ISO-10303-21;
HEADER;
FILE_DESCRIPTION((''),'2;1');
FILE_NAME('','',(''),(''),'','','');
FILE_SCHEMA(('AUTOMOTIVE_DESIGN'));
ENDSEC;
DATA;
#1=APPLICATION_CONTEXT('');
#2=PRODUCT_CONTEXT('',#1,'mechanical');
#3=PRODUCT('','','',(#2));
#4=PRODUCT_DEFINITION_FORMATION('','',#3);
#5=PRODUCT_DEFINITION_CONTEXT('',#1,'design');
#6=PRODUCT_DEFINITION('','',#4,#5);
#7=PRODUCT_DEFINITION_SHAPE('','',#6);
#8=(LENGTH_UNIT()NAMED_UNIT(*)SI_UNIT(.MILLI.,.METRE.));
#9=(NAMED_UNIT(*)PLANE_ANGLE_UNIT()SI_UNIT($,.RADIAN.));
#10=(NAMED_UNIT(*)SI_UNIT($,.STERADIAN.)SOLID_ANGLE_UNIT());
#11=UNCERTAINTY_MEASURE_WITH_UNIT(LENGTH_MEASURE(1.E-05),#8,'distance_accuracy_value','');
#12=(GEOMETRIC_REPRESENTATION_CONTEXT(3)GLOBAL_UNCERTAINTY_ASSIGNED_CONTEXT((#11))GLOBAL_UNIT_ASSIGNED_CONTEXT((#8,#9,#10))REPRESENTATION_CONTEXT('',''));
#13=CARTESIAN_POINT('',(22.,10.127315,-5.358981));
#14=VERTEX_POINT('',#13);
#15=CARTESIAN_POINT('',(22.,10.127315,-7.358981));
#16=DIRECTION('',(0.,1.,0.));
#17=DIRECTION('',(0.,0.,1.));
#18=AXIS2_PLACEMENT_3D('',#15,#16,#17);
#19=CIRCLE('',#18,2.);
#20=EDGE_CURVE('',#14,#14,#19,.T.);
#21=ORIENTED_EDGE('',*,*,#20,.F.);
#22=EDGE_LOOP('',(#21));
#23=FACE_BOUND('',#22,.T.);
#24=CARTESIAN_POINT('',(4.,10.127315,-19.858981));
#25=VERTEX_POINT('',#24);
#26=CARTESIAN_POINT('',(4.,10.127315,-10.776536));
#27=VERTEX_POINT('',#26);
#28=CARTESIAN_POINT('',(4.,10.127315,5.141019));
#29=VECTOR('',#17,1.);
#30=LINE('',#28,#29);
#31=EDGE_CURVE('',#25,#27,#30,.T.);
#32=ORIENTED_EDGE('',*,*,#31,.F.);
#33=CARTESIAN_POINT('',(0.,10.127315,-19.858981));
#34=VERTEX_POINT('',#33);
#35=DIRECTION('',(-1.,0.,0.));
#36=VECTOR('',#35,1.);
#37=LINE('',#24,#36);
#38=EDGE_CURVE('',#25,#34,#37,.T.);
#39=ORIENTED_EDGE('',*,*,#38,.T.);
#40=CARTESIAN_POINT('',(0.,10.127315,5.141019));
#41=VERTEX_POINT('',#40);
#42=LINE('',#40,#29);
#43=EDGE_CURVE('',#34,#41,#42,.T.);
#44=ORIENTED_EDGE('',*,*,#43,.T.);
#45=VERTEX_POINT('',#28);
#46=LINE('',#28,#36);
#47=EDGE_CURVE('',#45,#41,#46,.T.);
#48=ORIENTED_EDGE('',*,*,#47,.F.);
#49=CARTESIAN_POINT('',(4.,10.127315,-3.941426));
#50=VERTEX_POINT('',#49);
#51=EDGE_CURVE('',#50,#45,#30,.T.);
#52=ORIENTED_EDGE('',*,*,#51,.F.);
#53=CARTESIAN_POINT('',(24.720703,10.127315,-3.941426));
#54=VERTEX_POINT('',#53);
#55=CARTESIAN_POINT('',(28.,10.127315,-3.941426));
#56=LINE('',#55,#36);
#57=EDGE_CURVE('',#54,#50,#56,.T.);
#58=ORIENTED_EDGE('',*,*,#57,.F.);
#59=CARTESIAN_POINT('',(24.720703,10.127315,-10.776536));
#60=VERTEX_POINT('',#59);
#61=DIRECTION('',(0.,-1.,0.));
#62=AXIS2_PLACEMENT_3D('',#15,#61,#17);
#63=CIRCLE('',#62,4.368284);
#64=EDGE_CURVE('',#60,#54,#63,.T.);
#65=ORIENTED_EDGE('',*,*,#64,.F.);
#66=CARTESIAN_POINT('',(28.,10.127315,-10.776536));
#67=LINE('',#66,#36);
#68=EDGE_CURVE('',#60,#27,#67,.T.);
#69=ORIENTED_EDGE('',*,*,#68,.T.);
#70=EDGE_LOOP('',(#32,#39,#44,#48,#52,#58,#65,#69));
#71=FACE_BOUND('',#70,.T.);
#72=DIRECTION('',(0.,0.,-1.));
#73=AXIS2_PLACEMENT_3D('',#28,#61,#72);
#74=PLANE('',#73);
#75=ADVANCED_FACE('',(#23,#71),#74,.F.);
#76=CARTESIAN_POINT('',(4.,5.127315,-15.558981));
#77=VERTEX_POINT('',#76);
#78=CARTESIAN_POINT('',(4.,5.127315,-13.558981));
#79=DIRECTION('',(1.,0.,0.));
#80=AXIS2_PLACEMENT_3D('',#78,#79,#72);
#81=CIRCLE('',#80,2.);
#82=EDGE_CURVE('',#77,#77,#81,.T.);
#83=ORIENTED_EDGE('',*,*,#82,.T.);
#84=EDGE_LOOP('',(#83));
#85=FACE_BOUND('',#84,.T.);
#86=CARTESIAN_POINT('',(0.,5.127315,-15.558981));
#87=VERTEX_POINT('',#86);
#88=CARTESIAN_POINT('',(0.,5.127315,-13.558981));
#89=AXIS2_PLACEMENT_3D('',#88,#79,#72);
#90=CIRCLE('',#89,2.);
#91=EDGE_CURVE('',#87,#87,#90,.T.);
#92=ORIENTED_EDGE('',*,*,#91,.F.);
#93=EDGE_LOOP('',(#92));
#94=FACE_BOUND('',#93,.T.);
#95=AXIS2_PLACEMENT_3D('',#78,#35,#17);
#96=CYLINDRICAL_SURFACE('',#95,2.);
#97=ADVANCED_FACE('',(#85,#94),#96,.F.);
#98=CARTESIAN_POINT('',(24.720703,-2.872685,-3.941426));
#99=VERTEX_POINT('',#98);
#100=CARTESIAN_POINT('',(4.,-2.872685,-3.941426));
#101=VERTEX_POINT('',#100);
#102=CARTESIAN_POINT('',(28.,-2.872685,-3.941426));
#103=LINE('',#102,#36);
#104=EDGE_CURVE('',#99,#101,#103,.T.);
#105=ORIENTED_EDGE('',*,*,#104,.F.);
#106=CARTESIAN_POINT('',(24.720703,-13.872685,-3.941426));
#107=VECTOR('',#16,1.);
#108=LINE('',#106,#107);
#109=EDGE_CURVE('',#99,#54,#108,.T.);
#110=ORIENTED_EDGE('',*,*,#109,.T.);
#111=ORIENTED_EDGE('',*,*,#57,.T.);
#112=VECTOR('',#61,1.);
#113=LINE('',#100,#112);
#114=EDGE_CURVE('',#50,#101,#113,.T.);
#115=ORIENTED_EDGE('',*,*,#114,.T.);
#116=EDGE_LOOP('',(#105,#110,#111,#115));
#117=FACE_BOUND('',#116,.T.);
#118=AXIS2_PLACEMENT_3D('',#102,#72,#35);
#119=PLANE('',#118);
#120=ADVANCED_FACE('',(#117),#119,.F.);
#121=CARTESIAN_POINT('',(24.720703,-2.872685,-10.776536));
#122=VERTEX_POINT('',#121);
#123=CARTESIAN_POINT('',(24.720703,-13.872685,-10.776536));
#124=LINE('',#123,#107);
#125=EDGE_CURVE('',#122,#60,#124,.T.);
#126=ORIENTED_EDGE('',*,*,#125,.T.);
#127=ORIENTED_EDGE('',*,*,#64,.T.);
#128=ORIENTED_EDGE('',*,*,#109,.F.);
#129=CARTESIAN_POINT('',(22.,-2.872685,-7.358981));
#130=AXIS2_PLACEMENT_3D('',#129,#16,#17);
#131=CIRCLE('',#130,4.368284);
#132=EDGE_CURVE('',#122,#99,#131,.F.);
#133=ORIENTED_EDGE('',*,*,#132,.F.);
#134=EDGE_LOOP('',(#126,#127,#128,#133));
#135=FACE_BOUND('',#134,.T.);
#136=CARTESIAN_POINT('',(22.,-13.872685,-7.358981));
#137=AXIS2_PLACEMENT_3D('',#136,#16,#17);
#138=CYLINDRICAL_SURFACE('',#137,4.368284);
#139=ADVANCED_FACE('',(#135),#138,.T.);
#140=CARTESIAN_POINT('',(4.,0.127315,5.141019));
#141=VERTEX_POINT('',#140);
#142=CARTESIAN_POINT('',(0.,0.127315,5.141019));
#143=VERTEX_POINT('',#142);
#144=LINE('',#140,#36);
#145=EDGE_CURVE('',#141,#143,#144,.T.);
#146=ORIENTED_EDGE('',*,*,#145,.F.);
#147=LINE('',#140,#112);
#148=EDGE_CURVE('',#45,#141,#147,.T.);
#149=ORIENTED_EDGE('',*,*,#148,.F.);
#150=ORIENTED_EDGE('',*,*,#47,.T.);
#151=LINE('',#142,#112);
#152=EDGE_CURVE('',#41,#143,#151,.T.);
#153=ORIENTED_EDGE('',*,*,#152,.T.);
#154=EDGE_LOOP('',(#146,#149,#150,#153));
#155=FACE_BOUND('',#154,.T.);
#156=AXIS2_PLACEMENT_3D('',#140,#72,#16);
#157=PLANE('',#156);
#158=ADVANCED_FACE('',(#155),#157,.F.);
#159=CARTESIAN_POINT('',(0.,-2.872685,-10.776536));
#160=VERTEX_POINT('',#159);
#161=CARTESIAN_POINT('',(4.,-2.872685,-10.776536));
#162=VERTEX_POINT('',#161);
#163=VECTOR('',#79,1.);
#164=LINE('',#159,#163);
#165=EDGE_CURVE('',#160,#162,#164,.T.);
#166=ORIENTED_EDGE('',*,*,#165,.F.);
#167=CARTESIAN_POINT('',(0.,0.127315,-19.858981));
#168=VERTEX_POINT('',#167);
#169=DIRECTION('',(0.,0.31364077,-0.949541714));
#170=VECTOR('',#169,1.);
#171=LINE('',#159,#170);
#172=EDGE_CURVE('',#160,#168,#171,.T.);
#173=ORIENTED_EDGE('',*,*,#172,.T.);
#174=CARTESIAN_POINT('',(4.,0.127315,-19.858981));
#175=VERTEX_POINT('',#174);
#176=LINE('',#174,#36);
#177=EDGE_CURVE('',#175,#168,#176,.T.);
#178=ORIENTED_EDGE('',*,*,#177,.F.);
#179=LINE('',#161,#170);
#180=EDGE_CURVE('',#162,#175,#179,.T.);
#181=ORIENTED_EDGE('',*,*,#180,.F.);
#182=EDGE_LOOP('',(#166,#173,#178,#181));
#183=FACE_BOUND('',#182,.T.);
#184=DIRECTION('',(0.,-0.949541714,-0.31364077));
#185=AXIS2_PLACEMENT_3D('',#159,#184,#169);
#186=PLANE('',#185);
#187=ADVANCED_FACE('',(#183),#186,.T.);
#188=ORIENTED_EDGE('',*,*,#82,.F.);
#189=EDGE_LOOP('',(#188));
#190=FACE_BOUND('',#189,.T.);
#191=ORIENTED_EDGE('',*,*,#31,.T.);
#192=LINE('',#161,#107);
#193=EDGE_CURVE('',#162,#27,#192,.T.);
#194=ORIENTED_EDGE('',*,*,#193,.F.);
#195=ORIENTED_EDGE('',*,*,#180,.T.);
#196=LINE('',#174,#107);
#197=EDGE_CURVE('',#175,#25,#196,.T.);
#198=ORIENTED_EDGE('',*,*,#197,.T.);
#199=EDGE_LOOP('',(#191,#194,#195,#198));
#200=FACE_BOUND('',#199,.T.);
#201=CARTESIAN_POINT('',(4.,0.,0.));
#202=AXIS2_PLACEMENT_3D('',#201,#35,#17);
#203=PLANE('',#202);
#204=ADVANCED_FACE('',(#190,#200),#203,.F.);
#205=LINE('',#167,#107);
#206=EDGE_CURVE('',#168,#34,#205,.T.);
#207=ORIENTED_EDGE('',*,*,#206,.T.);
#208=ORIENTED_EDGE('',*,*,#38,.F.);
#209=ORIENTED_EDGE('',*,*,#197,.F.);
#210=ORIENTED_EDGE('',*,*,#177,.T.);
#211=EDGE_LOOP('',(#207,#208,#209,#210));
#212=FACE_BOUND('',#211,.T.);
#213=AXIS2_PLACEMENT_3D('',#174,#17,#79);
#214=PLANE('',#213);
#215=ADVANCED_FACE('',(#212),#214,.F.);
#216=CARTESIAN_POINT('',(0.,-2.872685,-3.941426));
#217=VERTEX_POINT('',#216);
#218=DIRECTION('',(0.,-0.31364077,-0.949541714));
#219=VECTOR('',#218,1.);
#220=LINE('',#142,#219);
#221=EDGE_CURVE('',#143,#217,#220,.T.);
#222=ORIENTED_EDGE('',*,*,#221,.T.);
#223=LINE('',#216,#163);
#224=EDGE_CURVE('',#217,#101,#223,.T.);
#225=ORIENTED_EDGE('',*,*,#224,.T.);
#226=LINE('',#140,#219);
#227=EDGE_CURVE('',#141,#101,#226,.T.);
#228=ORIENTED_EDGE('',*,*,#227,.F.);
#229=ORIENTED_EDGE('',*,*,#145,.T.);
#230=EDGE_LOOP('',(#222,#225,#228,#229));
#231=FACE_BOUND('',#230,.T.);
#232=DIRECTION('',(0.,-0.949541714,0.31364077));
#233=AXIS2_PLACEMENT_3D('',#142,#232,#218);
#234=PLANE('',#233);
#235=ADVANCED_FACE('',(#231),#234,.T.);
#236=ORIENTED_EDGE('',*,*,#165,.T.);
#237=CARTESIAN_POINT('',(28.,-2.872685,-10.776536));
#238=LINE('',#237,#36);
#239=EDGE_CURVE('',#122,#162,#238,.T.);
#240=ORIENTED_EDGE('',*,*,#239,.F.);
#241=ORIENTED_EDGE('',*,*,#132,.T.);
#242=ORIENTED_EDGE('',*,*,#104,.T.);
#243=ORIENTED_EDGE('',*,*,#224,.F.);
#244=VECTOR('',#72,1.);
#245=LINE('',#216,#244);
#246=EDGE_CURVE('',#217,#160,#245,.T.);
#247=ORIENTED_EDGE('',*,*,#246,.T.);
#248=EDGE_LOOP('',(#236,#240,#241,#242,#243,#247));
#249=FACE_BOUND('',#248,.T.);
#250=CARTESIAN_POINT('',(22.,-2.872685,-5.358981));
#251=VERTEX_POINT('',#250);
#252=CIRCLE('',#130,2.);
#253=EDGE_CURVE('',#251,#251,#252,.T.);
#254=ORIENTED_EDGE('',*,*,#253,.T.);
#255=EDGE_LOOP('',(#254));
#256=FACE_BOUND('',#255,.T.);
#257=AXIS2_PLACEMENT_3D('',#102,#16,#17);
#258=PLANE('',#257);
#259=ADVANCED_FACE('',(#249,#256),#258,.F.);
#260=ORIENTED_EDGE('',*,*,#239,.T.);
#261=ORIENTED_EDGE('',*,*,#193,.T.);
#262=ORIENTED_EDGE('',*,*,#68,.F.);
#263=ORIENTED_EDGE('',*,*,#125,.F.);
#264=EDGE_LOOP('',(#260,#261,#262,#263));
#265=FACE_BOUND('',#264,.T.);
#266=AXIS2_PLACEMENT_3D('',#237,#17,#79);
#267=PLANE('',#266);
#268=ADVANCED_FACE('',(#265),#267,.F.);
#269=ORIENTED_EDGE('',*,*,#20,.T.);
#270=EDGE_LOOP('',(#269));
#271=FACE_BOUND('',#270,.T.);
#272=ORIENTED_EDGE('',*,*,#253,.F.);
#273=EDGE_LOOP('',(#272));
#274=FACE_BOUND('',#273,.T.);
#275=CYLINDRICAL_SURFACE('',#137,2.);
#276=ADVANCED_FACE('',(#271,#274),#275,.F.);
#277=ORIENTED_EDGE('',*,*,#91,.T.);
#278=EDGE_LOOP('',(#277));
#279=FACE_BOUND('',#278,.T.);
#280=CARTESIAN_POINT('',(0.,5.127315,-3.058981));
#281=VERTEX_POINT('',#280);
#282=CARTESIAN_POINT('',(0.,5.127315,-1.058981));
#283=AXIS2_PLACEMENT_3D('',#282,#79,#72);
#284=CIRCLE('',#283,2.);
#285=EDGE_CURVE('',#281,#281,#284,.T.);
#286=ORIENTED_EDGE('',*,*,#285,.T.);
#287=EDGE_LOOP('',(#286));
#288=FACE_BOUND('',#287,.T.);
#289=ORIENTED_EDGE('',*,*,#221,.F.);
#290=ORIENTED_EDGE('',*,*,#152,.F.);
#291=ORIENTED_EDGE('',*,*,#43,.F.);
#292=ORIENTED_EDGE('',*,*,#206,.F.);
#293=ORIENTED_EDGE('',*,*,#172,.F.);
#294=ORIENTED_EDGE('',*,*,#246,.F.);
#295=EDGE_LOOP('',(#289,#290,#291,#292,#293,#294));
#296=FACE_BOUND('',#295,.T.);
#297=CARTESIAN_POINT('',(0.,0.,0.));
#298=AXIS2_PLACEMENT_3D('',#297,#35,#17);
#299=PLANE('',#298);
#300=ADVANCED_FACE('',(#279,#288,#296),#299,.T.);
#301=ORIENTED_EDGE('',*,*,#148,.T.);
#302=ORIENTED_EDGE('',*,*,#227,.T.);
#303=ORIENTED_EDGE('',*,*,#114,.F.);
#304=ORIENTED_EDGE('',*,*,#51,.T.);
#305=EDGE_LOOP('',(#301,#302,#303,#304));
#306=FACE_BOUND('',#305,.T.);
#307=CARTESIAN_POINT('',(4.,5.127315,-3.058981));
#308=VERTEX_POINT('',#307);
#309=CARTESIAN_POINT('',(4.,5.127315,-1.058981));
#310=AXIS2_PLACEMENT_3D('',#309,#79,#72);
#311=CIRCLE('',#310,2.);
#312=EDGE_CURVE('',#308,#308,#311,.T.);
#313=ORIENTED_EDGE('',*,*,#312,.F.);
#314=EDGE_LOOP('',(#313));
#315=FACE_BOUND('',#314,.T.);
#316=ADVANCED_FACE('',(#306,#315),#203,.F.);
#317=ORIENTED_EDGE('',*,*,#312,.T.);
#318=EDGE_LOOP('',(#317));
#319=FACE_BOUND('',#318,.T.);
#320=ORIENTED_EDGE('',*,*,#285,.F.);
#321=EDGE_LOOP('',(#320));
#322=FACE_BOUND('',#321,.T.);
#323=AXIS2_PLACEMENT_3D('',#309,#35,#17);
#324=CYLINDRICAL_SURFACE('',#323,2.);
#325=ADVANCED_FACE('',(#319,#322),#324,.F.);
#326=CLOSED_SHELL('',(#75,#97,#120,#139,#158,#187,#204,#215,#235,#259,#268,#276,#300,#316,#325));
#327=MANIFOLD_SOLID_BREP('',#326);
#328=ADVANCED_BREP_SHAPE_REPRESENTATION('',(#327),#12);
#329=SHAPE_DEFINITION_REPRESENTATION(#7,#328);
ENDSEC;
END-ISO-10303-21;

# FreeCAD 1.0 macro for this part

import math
import FreeCAD as App
import Part
import Sketcher
from FreeCAD import Vector
Q = App.Units.Quantity


def add_polygon(sketch, points):
    """Adds a closed chain of lines whose ends are joined by coincident constraints."""
    first, n = sketch.GeometryCount, len(points)
    for a, b in zip(points, points[1:] + points[:1]):
        sketch.addGeometry(Part.LineSegment(App.Vector(*a, 0), App.Vector(*b, 0)), False)
    for i in range(n):
        sketch.addConstraint(Sketcher.Constraint("Coincident", first + i, 2, first + (i + 1) % n, 1))

doc = App.newDocument("Part")
params = doc.addObject("Spreadsheet::Sheet", "Params")
for row, (alias, value) in enumerate([
    ("sketch1_diameter", "4 mm"),
    ("sketch1_width", "10 mm"),
    ("sketch1_height", "25 mm"),
    ("pad1_length", "4 mm"),
    ("sketch2_width", "13 mm"),
    ("pad2_length", "24 mm"),
    ("sketch3_diameter", "4 mm"),
    ("pocket1_length", "24 mm"),
    ("sketch4_height", "25 mm"),
    ("pad3_length", "4 mm"),
    ("pocket2_length", "24 mm"),
], start=1):
    params.set(f"A{row}", alias)
    params.set(f"B{row}", "=" + value)
    params.setAlias(f"B{row}", alias)

body = doc.addObject("PartDesign::Body", "Body")

# Sketch on YZ plane
sketch1 = doc.addObject("Sketcher::SketchObject", "Sketch")
body.addObject(sketch1)
sketch1.AttachmentSupport = (doc.YZ_Plane, [""])
sketch1.MapMode = "FlatFace"
add_polygon(sketch1, [(10.1, 5.1), (0.1, 5.1), (0.1, -19.9), (10.1, -19.9)])  # lines 0-3
sketch1.addGeometry(Part.Circle(Vector(5.1, -1.1, 0), Vector(0, 0, 1), 2), False)  # 4
sketch1.addGeometry(Part.Circle(Vector(5.1, -13.6, 0), Vector(0, 0, 1), 2), False)  # 5
sketch1.addConstraint(Sketcher.Constraint("Horizontal", 0))
sketch1.addConstraint(Sketcher.Constraint("Vertical", 1))
sketch1.addConstraint(Sketcher.Constraint("Horizontal", 2))
sketch1.addConstraint(Sketcher.Constraint("Vertical", 3))
sketch1.addConstraint(Sketcher.Constraint("Equal", 4, 5))
sketch1.addConstraint(Sketcher.Constraint("Vertical", 4, 3, 5, 3))
sketch1.addConstraint(Sketcher.Constraint("Diameter", 4, Q("4 mm")))
sketch1.addConstraint(Sketcher.Constraint("DistanceX", 0, 2, 0, 1, Q("10 mm")))
sketch1.addConstraint(Sketcher.Constraint("DistanceY", 1, 2, 1, 1, Q("25 mm")))
sketch1.addConstraint(Sketcher.Constraint("DistanceX", 0, 2, 4, 3, Q("5 mm")))
sketch1.addConstraint(Sketcher.Constraint("DistanceY", 5, 3, 4, 3, Q("12.5 mm")))
sketch1.addConstraint(Sketcher.Constraint("DistanceY", 4, 3, 0, 2, Q("6.2 mm")))
sketch1.addConstraint(Sketcher.Constraint("DistanceY", 4, 3, -1, 1, Q("1.058981 mm")))
sketch1.addConstraint(Sketcher.Constraint("DistanceX", -1, 1, 4, 3, Q("5.127315 mm")))
sketch1.setExpression("Constraints[10]", "Params.sketch1_diameter")
sketch1.setExpression("Constraints[11]", "Params.sketch1_width")
sketch1.setExpression("Constraints[12]", "Params.sketch1_height")
pad1 = doc.addObject("PartDesign::Pad", "Pad")
body.addObject(pad1)
pad1.Profile = sketch1
pad1.setExpression("Length", "Params.pad1_length")

# Sketch on YZ plane
sketch2 = doc.addObject("Sketcher::SketchObject", "Sketch001")
body.addObject(sketch2)
sketch2.AttachmentSupport = (doc.YZ_Plane, [""])
sketch2.MapMode = "FlatFace"
sketch2.AttachmentOffset = App.Placement(Vector(0, 0, 4), App.Rotation())
add_polygon(sketch2, [(10, -4), (-3, -4), (-3, -11), (10, -11)])  # lines 0-3
sketch2.addConstraint(Sketcher.Constraint("Horizontal", 0))
sketch2.addConstraint(Sketcher.Constraint("Vertical", 1))
sketch2.addConstraint(Sketcher.Constraint("Horizontal", 2))
sketch2.addConstraint(Sketcher.Constraint("Vertical", 3))
sketch2.addConstraint(Sketcher.Constraint("DistanceX", 0, 2, 0, 1, Q("13 mm")))
sketch2.addConstraint(Sketcher.Constraint("DistanceY", 1, 2, 1, 1, Q("6.835109 mm")))
sketch2.addConstraint(Sketcher.Constraint("DistanceX", 0, 2, -1, 1, Q("2.872685 mm")))
sketch2.addConstraint(Sketcher.Constraint("DistanceY", 0, 2, -1, 1, Q("3.941426 mm")))
sketch2.setExpression("Constraints[8]", "Params.sketch2_width")
pad2 = doc.addObject("PartDesign::Pad", "Pad001")
body.addObject(pad2)
pad2.Profile = sketch2
pad2.setExpression("Length", "Params.pad2_length")

# Sketch on XZ plane
sketch3 = doc.addObject("Sketcher::SketchObject", "Sketch002")
body.addObject(sketch3)
sketch3.AttachmentSupport = (doc.XZ_Plane, [""])
sketch3.MapMode = "FlatFace"
sketch3.AttachmentOffset = App.Placement(Vector(0, 0, -10.127315), App.Rotation())
sketch3.addGeometry(Part.Circle(Vector(22, -7.4, 0), Vector(0, 0, 1), 2), False)
sketch3.addConstraint(Sketcher.Constraint("Diameter", 0, Q("4 mm")))
sketch3.addConstraint(Sketcher.Constraint("DistanceX", -1, 1, 0, 3, Q("22 mm")))
sketch3.addConstraint(Sketcher.Constraint("DistanceY", 0, 3, -1, 1, Q("7.358981 mm")))
sketch3.setExpression("Constraints[0]", "Params.sketch3_diameter")
pocket1 = doc.addObject("PartDesign::Pocket", "Pocket")
body.addObject(pocket1)
pocket1.Profile = sketch3
pocket1.setExpression("Length", "Params.pocket1_length")
pocket1.Reversed = True

# Sketch on YZ plane
sketch4 = doc.addObject("Sketcher::SketchObject", "Sketch003")
body.addObject(sketch4)
sketch4.AttachmentSupport = (doc.YZ_Plane, [""])
sketch4.MapMode = "FlatFace"
sketch4.AttachmentOffset = App.Placement(Vector(0, 0, 4), App.Rotation())
add_polygon(sketch4, [(0, 5), (-3, -4), (-3, -11), (0, -20)])  # lines 0-3
sketch4.addConstraint(Sketcher.Constraint("Vertical", 1))
sketch4.addConstraint(Sketcher.Constraint("Vertical", 3))
sketch4.addConstraint(Sketcher.Constraint("Equal", 0, 2))
sketch4.addConstraint(Sketcher.Constraint("DistanceY", 3, 1, 3, 2, Q("25 mm")))
sketch4.addConstraint(Sketcher.Constraint("DistanceX", 1, 2, 2, 2, Q("3 mm")))
sketch4.addConstraint(Sketcher.Constraint("DistanceY", 1, 2, 1, 1, Q("6.835109 mm")))
sketch4.addConstraint(Sketcher.Constraint("DistanceY", 2, 2, -1, 1, Q("19.858981 mm")))
sketch4.addConstraint(Sketcher.Constraint("DistanceX", 0, 2, -1, 1, Q("2.872685 mm")))
sketch4.setExpression("Constraints[7]", "Params.sketch4_height")
pad3 = doc.addObject("PartDesign::Pad", "Pad002")
body.addObject(pad3)
pad3.Profile = sketch4
pad3.setExpression("Length", "Params.pad3_length")
pad3.Reversed = True

# Sketch on XZ plane
sketch5 = doc.addObject("Sketcher::SketchObject", "Sketch004")
body.addObject(sketch5)
sketch5.AttachmentSupport = (doc.XZ_Plane, [""])
sketch5.MapMode = "FlatFace"
sketch5.AttachmentOffset = App.Placement(Vector(0, 0, -10.127315), App.Rotation())
sketch5.addGeometry(Part.LineSegment(Vector(24.7, -3.9, 0), Vector(28, -3.9, 0)), False)
sketch5.addGeometry(Part.LineSegment(Vector(28, -3.9, 0), Vector(28, -10.8, 0)), False)
sketch5.addGeometry(Part.LineSegment(Vector(28, -10.8, 0), Vector(24.7, -10.8, 0)), False)
sketch5.addGeometry(Part.ArcOfCircle(Part.Circle(Vector(22, -7.4, 0), Vector(0, 0, 1), 4.4), math.radians(-51), math.radians(51)), False)
sketch5.addConstraint(Sketcher.Constraint("Coincident", 0, 2, 1, 1))
sketch5.addConstraint(Sketcher.Constraint("Coincident", 1, 2, 2, 1))
sketch5.addConstraint(Sketcher.Constraint("Coincident", 2, 2, 3, 1))
sketch5.addConstraint(Sketcher.Constraint("Coincident", 3, 2, 0, 1))
sketch5.addConstraint(Sketcher.Constraint("Horizontal", 0))
sketch5.addConstraint(Sketcher.Constraint("Vertical", 1))
sketch5.addConstraint(Sketcher.Constraint("Horizontal", 2))
sketch5.addConstraint(Sketcher.Constraint("Vertical", 2, 2, 3, 2))
sketch5.addConstraint(Sketcher.Constraint("DistanceX", -1, 1, 3, 3, Q("22 mm")))
sketch5.addConstraint(Sketcher.Constraint("DistanceX", -1, 1, 0, 2, Q("28 mm")))
sketch5.addConstraint(Sketcher.Constraint("Radius", 3, Q("4.368284 mm")))
sketch5.addConstraint(Sketcher.Constraint("DistanceY", 1, 2, 1, 1, Q("6.835109 mm")))
sketch5.addConstraint(Sketcher.Constraint("DistanceY", 3, 3, -1, 1, Q("7.358981 mm")))
pocket2 = doc.addObject("PartDesign::Pocket", "Pocket001")
body.addObject(pocket2)
pocket2.Profile = sketch5
pocket2.setExpression("Length", "Params.pocket2_length")
pocket2.Reversed = True

doc.recompute()
